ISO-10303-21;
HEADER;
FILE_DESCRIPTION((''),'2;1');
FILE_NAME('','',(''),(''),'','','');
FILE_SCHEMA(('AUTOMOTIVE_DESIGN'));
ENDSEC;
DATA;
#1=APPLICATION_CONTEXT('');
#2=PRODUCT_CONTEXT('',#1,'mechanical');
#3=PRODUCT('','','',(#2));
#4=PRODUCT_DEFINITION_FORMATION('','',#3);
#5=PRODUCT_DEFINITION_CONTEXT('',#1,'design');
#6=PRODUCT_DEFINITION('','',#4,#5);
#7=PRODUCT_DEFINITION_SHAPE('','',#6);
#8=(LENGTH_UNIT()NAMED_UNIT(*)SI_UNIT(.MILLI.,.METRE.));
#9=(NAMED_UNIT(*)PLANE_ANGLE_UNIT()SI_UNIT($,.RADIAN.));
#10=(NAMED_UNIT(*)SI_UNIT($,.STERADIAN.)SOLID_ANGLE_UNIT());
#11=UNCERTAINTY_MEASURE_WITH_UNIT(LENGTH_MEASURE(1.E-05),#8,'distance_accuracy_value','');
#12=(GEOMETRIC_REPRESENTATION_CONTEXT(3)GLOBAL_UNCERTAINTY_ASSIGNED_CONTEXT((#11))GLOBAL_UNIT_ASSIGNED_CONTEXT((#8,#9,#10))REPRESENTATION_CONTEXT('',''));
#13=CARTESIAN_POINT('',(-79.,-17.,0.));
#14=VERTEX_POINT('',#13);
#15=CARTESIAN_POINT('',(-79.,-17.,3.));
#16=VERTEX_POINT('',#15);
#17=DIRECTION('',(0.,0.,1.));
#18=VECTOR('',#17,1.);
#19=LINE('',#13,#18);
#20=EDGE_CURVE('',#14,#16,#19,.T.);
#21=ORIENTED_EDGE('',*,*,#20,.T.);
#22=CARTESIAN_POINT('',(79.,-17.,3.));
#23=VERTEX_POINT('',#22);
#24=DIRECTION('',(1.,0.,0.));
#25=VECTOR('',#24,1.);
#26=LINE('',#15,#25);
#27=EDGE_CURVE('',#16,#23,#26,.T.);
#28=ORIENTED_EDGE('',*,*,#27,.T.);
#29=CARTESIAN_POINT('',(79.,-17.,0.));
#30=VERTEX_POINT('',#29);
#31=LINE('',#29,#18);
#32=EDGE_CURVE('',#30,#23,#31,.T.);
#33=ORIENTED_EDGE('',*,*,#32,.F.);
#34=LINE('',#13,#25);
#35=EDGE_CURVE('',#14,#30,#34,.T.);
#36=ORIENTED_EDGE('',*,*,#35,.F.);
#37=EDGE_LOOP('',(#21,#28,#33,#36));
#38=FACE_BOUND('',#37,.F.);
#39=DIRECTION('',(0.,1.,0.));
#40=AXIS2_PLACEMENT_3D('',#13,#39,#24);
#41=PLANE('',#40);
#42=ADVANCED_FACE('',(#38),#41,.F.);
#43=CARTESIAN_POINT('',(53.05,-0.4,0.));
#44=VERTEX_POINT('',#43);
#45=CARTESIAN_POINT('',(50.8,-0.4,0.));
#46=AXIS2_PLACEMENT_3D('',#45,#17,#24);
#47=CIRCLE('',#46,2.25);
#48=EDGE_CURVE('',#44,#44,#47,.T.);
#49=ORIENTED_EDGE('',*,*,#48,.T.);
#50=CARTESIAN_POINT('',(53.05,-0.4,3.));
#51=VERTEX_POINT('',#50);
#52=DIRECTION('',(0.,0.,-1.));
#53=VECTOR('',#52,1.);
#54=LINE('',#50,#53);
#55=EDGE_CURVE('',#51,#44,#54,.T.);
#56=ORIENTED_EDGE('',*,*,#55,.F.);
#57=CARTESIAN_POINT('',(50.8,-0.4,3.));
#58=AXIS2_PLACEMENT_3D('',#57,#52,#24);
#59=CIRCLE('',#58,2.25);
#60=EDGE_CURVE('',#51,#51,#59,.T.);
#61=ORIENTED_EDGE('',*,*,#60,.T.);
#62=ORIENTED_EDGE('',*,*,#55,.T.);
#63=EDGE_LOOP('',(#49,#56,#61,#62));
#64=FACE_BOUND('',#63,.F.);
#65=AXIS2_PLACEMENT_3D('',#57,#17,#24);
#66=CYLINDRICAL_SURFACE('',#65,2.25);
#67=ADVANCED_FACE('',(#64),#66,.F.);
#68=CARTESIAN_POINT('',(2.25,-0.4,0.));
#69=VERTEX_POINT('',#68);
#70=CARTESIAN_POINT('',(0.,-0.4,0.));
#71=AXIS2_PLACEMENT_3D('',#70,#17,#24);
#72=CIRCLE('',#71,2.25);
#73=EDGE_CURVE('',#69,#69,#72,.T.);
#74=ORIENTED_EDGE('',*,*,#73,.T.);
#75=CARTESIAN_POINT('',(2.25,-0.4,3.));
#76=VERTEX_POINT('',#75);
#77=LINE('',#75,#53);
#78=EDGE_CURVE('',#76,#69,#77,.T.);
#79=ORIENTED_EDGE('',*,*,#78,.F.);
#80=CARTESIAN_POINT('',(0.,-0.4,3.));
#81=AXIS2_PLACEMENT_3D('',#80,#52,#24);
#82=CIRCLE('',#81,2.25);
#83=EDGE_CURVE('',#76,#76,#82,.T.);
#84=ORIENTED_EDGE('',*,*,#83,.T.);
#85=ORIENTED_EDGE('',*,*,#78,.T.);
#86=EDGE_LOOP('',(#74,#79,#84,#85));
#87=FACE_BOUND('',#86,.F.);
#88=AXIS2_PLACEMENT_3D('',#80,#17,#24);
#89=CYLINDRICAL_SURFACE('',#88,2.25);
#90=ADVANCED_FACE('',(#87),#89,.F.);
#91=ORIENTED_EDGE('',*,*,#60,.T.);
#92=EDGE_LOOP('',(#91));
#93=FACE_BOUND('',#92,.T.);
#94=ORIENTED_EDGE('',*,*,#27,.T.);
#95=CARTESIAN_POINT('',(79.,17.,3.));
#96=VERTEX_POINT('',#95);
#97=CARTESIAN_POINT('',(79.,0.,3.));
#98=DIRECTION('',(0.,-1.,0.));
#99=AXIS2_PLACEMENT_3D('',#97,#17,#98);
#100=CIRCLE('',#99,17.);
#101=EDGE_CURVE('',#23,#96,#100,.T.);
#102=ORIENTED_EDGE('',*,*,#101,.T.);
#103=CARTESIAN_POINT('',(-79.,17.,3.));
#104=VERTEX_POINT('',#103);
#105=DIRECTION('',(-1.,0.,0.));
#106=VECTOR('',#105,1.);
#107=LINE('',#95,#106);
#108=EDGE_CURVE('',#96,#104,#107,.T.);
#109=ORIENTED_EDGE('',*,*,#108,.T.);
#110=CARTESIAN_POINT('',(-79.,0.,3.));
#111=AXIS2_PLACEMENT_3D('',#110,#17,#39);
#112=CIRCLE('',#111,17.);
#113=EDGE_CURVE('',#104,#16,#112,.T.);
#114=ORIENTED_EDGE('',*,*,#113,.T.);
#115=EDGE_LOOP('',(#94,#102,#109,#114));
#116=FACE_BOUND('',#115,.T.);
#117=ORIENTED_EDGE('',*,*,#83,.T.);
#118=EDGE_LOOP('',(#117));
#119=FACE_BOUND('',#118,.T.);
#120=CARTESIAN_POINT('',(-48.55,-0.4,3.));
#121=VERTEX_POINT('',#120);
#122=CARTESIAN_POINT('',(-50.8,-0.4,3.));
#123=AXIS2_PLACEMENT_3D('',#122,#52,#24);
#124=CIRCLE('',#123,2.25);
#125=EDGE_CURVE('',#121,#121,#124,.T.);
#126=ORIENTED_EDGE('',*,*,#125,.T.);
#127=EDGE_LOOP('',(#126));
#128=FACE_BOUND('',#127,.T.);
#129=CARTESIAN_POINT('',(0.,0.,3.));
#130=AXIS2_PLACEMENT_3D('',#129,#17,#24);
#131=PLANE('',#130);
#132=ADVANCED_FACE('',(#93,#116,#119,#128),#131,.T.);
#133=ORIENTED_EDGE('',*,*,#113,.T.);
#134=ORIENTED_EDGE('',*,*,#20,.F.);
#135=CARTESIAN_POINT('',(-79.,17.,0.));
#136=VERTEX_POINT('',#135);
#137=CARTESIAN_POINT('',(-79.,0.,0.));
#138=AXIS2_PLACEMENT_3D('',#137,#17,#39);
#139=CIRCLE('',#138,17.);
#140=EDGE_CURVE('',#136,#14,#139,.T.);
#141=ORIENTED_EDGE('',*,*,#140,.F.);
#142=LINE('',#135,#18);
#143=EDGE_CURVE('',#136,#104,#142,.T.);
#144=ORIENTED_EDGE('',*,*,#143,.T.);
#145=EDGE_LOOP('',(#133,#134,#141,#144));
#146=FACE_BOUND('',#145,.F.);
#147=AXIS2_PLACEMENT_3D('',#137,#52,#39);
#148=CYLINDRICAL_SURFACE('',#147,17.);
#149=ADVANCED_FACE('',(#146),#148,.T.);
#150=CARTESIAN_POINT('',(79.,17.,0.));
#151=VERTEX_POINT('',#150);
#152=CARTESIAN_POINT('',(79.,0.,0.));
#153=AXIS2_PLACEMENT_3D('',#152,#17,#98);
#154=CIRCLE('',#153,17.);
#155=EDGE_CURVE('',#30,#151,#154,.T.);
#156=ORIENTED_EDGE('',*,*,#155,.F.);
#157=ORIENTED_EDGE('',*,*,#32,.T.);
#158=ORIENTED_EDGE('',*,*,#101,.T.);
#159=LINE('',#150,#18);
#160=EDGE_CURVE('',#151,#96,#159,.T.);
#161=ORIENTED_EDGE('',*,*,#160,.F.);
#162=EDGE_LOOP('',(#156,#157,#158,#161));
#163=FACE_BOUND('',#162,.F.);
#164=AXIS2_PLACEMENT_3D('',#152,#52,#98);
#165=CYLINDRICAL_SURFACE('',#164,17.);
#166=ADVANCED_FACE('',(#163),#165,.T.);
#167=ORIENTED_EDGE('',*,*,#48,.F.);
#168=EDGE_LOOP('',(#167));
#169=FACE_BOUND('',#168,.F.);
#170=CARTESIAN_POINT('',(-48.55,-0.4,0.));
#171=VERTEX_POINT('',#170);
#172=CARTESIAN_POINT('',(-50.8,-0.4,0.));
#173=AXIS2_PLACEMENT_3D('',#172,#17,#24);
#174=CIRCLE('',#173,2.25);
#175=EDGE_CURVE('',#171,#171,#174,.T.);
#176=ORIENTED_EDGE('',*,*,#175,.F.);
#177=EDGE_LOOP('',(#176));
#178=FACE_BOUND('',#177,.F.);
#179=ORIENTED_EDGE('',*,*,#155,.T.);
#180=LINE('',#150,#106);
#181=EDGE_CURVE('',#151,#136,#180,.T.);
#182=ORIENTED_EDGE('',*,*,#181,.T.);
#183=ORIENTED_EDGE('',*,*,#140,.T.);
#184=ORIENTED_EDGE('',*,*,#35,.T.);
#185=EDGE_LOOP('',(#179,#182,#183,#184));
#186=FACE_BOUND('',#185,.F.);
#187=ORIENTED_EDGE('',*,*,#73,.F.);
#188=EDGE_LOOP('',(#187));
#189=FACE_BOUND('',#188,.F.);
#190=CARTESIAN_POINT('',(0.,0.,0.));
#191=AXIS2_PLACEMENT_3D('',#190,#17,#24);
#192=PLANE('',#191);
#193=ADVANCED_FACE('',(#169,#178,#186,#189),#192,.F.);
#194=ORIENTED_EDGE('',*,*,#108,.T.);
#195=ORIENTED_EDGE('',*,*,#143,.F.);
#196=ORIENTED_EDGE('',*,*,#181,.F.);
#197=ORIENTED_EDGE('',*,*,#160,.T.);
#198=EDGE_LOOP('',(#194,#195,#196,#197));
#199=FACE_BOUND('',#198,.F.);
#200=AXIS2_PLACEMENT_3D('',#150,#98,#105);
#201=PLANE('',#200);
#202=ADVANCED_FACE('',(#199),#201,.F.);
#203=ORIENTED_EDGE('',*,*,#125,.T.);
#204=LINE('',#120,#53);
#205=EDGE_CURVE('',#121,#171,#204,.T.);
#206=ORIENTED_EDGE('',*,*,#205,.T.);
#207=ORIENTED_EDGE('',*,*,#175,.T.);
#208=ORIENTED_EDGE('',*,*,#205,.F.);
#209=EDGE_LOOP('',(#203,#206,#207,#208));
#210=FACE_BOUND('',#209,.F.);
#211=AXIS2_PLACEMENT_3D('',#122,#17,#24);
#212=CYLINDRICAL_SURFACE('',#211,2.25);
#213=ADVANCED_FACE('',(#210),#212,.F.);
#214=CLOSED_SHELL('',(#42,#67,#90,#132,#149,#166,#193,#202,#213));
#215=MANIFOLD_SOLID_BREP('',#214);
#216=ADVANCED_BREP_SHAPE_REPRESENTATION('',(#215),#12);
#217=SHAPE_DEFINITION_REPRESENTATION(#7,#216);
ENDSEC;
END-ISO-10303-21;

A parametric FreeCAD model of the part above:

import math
import FreeCAD as App
import Part
import Sketcher

V = App.Vector
Q = App.Units.Quantity

doc = App.newDocument("Part")
body = doc.addObject("PartDesign::Body", "Body")

# Sketch on XY plane
sketch1 = body.newObject("Sketcher::SketchObject", "Sketch")
sketch1.AttachmentSupport = (doc.getObject("XY_Plane"), [""])
sketch1.MapMode = "FlatFace"
sketch1.addGeometry([
    Part.ArcOfCircle(Part.Circle(V(-79, 0, 0), V(0, 0, 1), 17), math.radians(90), math.radians(270)),
    Part.LineSegment(V(-79, -17, 0), V(79, -17, 0)),
    Part.ArcOfCircle(Part.Circle(V(79, 0, 0), V(0, 0, 1), 17), math.radians(-90), math.radians(90)),
    Part.LineSegment(V(79, 17, 0), V(-79, 17, 0)),
], False)
sketch1.addConstraint([
    Sketcher.Constraint("Tangent", 0, 2, 1, 1),
    Sketcher.Constraint("Tangent", 1, 2, 2, 1),
    Sketcher.Constraint("Tangent", 2, 2, 3, 1),
    Sketcher.Constraint("Tangent", 3, 2, 0, 1),
    Sketcher.Constraint("Horizontal", 1),
    Sketcher.Constraint("Horizontal", 3),
    Sketcher.Constraint("Symmetric", 0, 3, 2, 3, -1, 1),
    Sketcher.Constraint("Radius", 0, Q("17 mm")),
    Sketcher.Constraint("DistanceX", 0, 3, -1, 1, Q("79 mm")),
])
pad1 = body.newObject("PartDesign::Pad", "Pad")
pad1.Profile = sketch1
pad1.Length = 3

# Sketch on XY plane
sketch2 = body.newObject("Sketcher::SketchObject", "Sketch001")
sketch2.AttachmentSupport = (doc.getObject("XY_Plane"), [""])
sketch2.MapMode = "FlatFace"
sketch2.AttachmentOffset = App.Placement(V(0, 0, 3), App.Rotation())
sketch2.addGeometry([
    Part.Circle(V(50.8, -0.4, 0), V(0, 0, 1), 2.2),
    Part.Circle(V(-50.8, -0.4, 0), V(0, 0, 1), 2.2),
    Part.Circle(V(0, -0.4, 0), V(0, 0, 1), 2.2),
], False)
sketch2.addConstraint([
    Sketcher.Constraint("Equal", 0, 1),
    Sketcher.Constraint("Equal", 1, 2),
    Sketcher.Constraint("Symmetric", 0, 3, 1, 3, -2),
    Sketcher.Constraint("PointOnObject", 2, 3, -2),
    Sketcher.Constraint("Horizontal", 1, 3, 2, 3),
    Sketcher.Constraint("Diameter", 0, Q("4.5 mm")),
    Sketcher.Constraint("DistanceX", -1, 1, 0, 3, Q("50.8 mm")),
    Sketcher.Constraint("DistanceY", 0, 3, -1, 1, Q("0.4 mm")),
])
pocket1 = body.newObject("PartDesign::Pocket", "Pocket")
pocket1.Profile = sketch2
pocket1.Type = "ThroughAll"

doc.recompute()
